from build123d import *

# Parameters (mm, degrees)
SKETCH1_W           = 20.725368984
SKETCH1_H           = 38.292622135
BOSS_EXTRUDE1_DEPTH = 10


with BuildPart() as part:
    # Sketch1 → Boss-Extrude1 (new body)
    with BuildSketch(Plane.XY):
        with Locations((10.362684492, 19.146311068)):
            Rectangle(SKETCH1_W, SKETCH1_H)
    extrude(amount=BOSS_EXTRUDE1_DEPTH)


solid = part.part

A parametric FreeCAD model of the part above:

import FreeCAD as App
import Part
import Sketcher

V = App.Vector
Q = App.Units.Quantity

doc = App.newDocument("Part")
body = doc.addObject("PartDesign::Body", "Body")

sketch1 = body.newObject("Sketcher::SketchObject", "Sketch")
sketch1.AttachmentSupport = (doc.getObject("XY_Plane"), [""])
sketch1.MapMode = "FlatFace"
sketch1.addGeometry([
    Part.LineSegment(V(0, 38, 0), V(0, 0, 0)),
    Part.LineSegment(V(0, 0, 0), V(21, 0, 0)),
    Part.LineSegment(V(21, 0, 0), V(21, 38, 0)),
    Part.LineSegment(V(21, 38, 0), V(0, 38, 0)),
], False)
sketch1.addConstraint([
    Sketcher.Constraint("Coincident", 0, 2, 1, 1),
    Sketcher.Constraint("Coincident", 1, 2, 2, 1),
    Sketcher.Constraint("Coincident", 2, 2, 3, 1),
    Sketcher.Constraint("Coincident", 3, 2, 0, 1),
    Sketcher.Constraint("Vertical", 0),
    Sketcher.Constraint("Horizontal", 1),
    Sketcher.Constraint("Vertical", 2),
    Sketcher.Constraint("Horizontal", 3),
    Sketcher.Constraint("Coincident", 0, 2, -1, 1),
    Sketcher.Constraint("DistanceX", 1, 1, 1, 2, Q("20.725369 mm")),
    Sketcher.Constraint("DistanceY", 0, 2, 0, 1, Q("38.292622 mm")),
])
pad1 = body.newObject("PartDesign::Pad", "Pad")
pad1.Profile = sketch1
pad1.Length = 10

doc.recompute()
